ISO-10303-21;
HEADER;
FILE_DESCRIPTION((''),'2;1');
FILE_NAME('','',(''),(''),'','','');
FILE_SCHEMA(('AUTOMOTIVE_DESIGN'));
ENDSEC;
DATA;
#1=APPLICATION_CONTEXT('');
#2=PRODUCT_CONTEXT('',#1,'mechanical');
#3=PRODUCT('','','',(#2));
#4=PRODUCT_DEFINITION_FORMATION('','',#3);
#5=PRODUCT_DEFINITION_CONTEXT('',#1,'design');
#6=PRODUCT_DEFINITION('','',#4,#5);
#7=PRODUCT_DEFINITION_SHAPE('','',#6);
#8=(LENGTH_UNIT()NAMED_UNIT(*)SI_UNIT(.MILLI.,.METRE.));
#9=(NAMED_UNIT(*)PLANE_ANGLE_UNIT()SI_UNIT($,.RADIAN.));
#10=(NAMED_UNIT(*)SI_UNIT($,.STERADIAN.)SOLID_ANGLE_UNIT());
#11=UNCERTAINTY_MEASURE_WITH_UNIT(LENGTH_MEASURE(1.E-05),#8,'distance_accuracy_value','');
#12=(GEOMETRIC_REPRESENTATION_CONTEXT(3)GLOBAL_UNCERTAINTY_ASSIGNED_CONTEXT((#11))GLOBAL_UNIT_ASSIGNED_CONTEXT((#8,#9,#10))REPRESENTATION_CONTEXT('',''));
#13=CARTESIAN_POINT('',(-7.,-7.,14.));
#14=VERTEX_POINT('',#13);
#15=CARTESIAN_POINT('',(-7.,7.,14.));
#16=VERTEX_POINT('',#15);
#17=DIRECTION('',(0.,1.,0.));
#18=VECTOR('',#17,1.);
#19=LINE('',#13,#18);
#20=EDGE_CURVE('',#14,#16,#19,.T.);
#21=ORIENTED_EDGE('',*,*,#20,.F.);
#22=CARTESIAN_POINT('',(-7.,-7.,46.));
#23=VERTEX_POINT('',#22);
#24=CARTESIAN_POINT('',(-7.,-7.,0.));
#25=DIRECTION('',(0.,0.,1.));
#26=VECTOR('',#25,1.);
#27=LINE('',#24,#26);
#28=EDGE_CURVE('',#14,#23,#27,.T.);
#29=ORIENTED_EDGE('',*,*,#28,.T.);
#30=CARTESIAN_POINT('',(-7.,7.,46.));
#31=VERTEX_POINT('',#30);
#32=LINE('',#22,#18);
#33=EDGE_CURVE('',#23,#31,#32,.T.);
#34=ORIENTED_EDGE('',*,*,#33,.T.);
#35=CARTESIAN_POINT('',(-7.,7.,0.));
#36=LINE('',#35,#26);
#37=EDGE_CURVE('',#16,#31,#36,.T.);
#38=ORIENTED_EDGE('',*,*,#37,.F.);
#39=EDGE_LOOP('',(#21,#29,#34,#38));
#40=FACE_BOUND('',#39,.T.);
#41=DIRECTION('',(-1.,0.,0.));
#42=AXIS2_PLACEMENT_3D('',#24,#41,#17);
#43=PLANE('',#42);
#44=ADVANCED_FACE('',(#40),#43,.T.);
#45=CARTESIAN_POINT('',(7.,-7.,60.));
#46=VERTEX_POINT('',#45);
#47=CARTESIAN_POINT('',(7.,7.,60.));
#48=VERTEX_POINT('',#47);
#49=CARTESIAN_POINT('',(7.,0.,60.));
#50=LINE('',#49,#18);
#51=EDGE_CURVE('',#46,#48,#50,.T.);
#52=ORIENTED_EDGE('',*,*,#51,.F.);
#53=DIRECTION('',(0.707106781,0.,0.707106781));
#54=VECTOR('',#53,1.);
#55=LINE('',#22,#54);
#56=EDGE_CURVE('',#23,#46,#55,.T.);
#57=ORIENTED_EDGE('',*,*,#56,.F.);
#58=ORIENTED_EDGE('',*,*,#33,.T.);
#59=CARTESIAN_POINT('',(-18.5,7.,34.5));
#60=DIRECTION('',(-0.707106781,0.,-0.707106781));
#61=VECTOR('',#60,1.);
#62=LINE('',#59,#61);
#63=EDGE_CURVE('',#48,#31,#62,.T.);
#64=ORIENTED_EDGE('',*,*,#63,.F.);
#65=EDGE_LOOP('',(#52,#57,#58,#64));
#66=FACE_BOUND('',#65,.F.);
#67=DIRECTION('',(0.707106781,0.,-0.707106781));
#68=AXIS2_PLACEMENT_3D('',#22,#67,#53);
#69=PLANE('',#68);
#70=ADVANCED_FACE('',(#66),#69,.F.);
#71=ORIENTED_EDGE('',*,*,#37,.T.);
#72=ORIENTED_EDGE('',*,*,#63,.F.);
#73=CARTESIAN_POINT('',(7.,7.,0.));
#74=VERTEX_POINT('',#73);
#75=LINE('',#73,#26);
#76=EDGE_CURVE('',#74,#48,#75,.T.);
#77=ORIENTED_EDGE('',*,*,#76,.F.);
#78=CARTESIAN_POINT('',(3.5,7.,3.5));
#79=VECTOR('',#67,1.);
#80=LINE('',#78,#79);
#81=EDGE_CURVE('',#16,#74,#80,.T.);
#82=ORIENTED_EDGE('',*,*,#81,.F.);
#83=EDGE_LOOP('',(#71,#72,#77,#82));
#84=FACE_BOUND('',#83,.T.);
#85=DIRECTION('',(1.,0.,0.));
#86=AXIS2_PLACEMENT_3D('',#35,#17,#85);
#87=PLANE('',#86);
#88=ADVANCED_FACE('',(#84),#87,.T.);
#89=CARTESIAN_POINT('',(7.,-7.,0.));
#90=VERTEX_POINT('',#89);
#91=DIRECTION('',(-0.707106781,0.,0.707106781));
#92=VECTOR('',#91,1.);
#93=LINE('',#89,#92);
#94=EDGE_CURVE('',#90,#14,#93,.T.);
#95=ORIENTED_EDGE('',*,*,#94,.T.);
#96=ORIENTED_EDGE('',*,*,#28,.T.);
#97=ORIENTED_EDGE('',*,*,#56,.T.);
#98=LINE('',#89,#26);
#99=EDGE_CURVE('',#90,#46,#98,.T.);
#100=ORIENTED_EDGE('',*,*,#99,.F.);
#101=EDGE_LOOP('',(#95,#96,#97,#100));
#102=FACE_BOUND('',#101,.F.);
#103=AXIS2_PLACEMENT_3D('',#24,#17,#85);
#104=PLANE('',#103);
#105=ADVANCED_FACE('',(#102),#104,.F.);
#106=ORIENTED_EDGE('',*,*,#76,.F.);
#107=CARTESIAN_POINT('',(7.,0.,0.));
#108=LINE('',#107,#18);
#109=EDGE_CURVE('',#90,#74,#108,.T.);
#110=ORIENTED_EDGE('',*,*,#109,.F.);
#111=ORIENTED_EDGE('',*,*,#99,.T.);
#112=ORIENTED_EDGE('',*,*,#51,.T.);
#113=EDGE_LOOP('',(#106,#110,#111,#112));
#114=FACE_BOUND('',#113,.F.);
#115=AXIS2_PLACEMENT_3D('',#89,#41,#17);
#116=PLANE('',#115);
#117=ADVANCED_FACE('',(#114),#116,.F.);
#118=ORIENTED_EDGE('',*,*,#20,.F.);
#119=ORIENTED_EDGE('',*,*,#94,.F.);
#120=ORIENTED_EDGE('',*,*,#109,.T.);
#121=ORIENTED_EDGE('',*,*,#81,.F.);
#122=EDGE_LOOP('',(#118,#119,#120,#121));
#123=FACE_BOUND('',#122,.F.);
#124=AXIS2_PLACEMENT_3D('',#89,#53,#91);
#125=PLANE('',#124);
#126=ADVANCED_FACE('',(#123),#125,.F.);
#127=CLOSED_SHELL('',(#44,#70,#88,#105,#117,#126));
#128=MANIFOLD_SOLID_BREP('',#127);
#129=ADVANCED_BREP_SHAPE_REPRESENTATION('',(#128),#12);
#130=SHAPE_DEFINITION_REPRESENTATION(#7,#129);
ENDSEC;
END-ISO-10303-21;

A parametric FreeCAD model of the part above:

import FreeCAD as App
import Part
import Sketcher

doc = App.newDocument("Part")
body = doc.addObject("PartDesign::Body", "Body")

sketch1 = body.newObject("Sketcher::SketchObject", "Sketch")
sketch1.AttachmentSupport = (doc.getObject("XY_Plane"), [""])
sketch1.MapMode = "FlatFace"
sketch1.addGeometry(Part.LineSegment(App.Vector(-7, 7, 0), App.Vector(-7, -7, 0)), False)
sketch1.addGeometry(Part.LineSegment(App.Vector(-7, -7, 0), App.Vector(7, -7, 0)), False)
sketch1.addGeometry(Part.LineSegment(App.Vector(7, -7, 0), App.Vector(7, 7, 0)), False)
sketch1.addGeometry(Part.LineSegment(App.Vector(7, 7, 0), App.Vector(-7, 7, 0)), False)
sketch1.addConstraint(Sketcher.Constraint("Coincident", 0, 2, 1, 1))
sketch1.addConstraint(Sketcher.Constraint("Coincident", 1, 2, 2, 1))
sketch1.addConstraint(Sketcher.Constraint("Coincident", 2, 2, 3, 1))
sketch1.addConstraint(Sketcher.Constraint("Coincident", 3, 2, 0, 1))
sketch1.addConstraint(Sketcher.Constraint("Vertical", 0))
sketch1.addConstraint(Sketcher.Constraint("Horizontal", 1))
sketch1.addConstraint(Sketcher.Constraint("Vertical", 2))
sketch1.addConstraint(Sketcher.Constraint("Horizontal", 3))
sketch1.addConstraint(Sketcher.Constraint("Symmetric", 0, 2, 2, 2, -1, 1))
sketch1.addConstraint(Sketcher.Constraint("Equal", 3, 0))
sketch1.addConstraint(Sketcher.Constraint("DistanceX", 1, 1, 1, 2, 14.0))
pad1 = body.newObject("PartDesign::Pad", "Pad")
pad1.Profile = sketch1
pad1.Length = 60

sketch2 = body.newObject("Sketcher::SketchObject", "Sketch001")
sketch2.AttachmentSupport = (doc.getObject("XZ_Plane"), [""])
sketch2.MapMode = "FlatFace"
sketch2.AttachmentOffset = App.Placement(App.Vector(0, 0, 7), App.Rotation())
sketch2.addGeometry(Part.LineSegment(App.Vector(-7, 46, 0), App.Vector(7, 60, 0)), False)
sketch2.addGeometry(Part.LineSegment(App.Vector(7, 60, 0), App.Vector(-7, 60, 0)), False)
sketch2.addGeometry(Part.LineSegment(App.Vector(-7, 60, 0), App.Vector(-7, 46, 0)), False)
sketch2.addConstraint(Sketcher.Constraint("Coincident", 0, 2, 1, 1))
sketch2.addConstraint(Sketcher.Constraint("Coincident", 1, 2, 2, 1))
sketch2.addConstraint(Sketcher.Constraint("Coincident", 2, 2, 0, 1))
sketch2.addConstraint(Sketcher.Constraint("Horizontal", 1))
sketch2.addConstraint(Sketcher.Constraint("Vertical", 2))
sketch2.addConstraint(Sketcher.Constraint("Equal", 1, 2))
sketch2.addConstraint(Sketcher.Constraint("DistanceX", 1, 2, 1, 1, 14.0))
sketch2.addConstraint(Sketcher.Constraint("DistanceX", -1, 1, 0, 2, 7.0))
sketch2.addConstraint(Sketcher.Constraint("DistanceY", -1, 1, 0, 2, 60.0))
pocket1 = body.newObject("PartDesign::Pocket", "Pocket")
pocket1.Profile = sketch2
pocket1.Length = 25

sketch3 = body.newObject("Sketcher::SketchObject", "Sketch002")
sketch3.AttachmentSupport = (doc.getObject("XZ_Plane"), [""])
sketch3.MapMode = "FlatFace"
sketch3.AttachmentOffset = App.Placement(App.Vector(0, 0, 7), App.Rotation())
sketch3.addGeometry(Part.LineSegment(App.Vector(-7, 0, 0), App.Vector(7, 0, 0)), False)
sketch3.addGeometry(Part.LineSegment(App.Vector(7, 0, 0), App.Vector(-7, 14, 0)), False)
sketch3.addGeometry(Part.LineSegment(App.Vector(-7, 14, 0), App.Vector(-7, 0, 0)), False)
sketch3.addConstraint(Sketcher.Constraint("Coincident", 0, 2, 1, 1))
sketch3.addConstraint(Sketcher.Constraint("Coincident", 1, 2, 2, 1))
sketch3.addConstraint(Sketcher.Constraint("Coincident", 2, 2, 0, 1))
sketch3.addConstraint(Sketcher.Constraint("Horizontal", 0))
sketch3.addConstraint(Sketcher.Constraint("Vertical", 2))
sketch3.addConstraint(Sketcher.Constraint("Symmetric", 0, 2, 2, 2, -1, 1))
sketch3.addConstraint(Sketcher.Constraint("Equal", 0, 2))
sketch3.addConstraint(Sketcher.Constraint("DistanceX", 0, 1, 0, 2, 14.0))
pocket2 = body.newObject("PartDesign::Pocket", "Pocket001")
pocket2.Profile = sketch3
pocket2.Length = 25

doc.recompute()
